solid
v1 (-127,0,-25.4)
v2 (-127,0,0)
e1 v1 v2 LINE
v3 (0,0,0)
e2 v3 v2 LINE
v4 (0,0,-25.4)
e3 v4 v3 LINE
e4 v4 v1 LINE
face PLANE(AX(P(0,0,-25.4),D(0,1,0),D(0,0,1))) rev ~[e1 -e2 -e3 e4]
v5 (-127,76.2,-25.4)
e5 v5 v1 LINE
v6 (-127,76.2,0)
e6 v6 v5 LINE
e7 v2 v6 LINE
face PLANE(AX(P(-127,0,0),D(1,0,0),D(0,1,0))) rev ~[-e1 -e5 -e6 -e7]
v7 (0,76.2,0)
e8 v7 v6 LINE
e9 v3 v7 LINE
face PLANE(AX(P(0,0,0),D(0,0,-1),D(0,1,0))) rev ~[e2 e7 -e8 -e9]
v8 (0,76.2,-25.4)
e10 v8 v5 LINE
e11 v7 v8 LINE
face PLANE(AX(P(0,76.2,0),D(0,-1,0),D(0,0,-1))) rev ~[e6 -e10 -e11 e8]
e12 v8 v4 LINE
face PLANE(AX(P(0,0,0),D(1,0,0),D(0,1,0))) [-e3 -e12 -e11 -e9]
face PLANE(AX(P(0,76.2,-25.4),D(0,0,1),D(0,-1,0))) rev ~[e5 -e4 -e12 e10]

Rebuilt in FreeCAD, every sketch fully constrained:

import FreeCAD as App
import Part
import Sketcher

V = App.Vector
Q = App.Units.Quantity

doc = App.newDocument("Part")
body = doc.addObject("PartDesign::Body", "Body")

sketch1 = doc.addObject("Sketcher::SketchObject", "Sketch")
body.addObject(sketch1)
sketch1.AttachmentSupport = (doc.YZ_Plane, [""])
sketch1.MapMode = "FlatFace"
sketch1.addGeometry(Part.LineSegment(V(76, 0, 0), V(0, 0, 0)), False)
sketch1.addGeometry(Part.LineSegment(V(0, 0, 0), V(0, -25, 0)), False)
sketch1.addGeometry(Part.LineSegment(V(0, -25, 0), V(76, -25, 0)), False)
sketch1.addGeometry(Part.LineSegment(V(76, -25, 0), V(76, 0, 0)), False)
sketch1.addConstraint(Sketcher.Constraint("Coincident", 0, 2, 1, 1))
sketch1.addConstraint(Sketcher.Constraint("Coincident", 1, 2, 2, 1))
sketch1.addConstraint(Sketcher.Constraint("Coincident", 2, 2, 3, 1))
sketch1.addConstraint(Sketcher.Constraint("Coincident", 3, 2, 0, 1))
sketch1.addConstraint(Sketcher.Constraint("Horizontal", 0))
sketch1.addConstraint(Sketcher.Constraint("Vertical", 1))
sketch1.addConstraint(Sketcher.Constraint("Horizontal", 2))
sketch1.addConstraint(Sketcher.Constraint("Vertical", 3))
sketch1.addConstraint(Sketcher.Constraint("Coincident", 0, 2, -1, 1))
sketch1.addConstraint(Sketcher.Constraint("DistanceX", 0, 2, 0, 1, Q("3 in")))
sketch1.addConstraint(Sketcher.Constraint("DistanceY", 1, 2, 1, 1, Q("1 in")))
pad1 = doc.addObject("PartDesign::Pad", "Pad")
body.addObject(pad1)
pad1.Profile = sketch1
pad1.Length = Q("5 in")
pad1.Reversed = True

doc.recompute()
